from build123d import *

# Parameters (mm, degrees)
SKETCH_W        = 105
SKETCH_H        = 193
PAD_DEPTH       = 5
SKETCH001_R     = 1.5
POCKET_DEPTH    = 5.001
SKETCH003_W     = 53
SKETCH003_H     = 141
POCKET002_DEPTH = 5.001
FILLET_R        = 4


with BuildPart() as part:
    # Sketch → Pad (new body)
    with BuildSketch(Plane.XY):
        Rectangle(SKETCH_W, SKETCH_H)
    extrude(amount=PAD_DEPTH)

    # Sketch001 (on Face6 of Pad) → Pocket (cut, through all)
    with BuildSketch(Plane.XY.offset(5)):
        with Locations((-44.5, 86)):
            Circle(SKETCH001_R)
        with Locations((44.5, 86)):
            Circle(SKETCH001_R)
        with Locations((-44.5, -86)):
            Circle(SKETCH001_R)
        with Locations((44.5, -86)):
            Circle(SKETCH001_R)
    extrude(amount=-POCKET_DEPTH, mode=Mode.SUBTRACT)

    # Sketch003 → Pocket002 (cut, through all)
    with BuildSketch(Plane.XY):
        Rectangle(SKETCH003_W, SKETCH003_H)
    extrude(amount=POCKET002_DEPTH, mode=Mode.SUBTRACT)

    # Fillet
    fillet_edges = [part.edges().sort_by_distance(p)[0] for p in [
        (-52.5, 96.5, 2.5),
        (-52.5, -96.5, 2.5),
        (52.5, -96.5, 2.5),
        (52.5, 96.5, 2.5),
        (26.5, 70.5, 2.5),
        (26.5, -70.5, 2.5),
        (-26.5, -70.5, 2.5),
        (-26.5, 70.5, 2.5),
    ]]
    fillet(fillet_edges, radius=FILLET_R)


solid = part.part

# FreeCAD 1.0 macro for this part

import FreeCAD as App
import Part
import Sketcher


def edges_at(feature, points):
    """Names of the edges that pass closest to the given points."""
    edges = feature.Shape.Edges
    near = lambda p: min(range(len(edges)), key=lambda i: edges[i].distToShape(Part.Vertex(*p))[0])
    return sorted({f"Edge{near(p) + 1}" for p in points})

doc = App.newDocument("Part")
body = doc.addObject("PartDesign::Body", "Body")

sketch1 = doc.addObject("Sketcher::SketchObject", "Sketch")
body.addObject(sketch1)
sketch1.AttachmentSupport = (doc.XY_Plane, [""])
sketch1.MapMode = "FlatFace"
sketch1.addGeometry(Part.LineSegment(App.Vector(-52, 96, 0), App.Vector(-52, -96, 0)), False)
sketch1.addGeometry(Part.LineSegment(App.Vector(-52, -96, 0), App.Vector(52, -96, 0)), False)
sketch1.addGeometry(Part.LineSegment(App.Vector(52, -96, 0), App.Vector(52, 96, 0)), False)
sketch1.addGeometry(Part.LineSegment(App.Vector(52, 96, 0), App.Vector(-52, 96, 0)), False)
sketch1.addConstraint(Sketcher.Constraint("Coincident", 0, 2, 1, 1))
sketch1.addConstraint(Sketcher.Constraint("Coincident", 1, 2, 2, 1))
sketch1.addConstraint(Sketcher.Constraint("Coincident", 2, 2, 3, 1))
sketch1.addConstraint(Sketcher.Constraint("Coincident", 3, 2, 0, 1))
sketch1.addConstraint(Sketcher.Constraint("Vertical", 0))
sketch1.addConstraint(Sketcher.Constraint("Horizontal", 1))
sketch1.addConstraint(Sketcher.Constraint("Vertical", 2))
sketch1.addConstraint(Sketcher.Constraint("Horizontal", 3))
sketch1.addConstraint(Sketcher.Constraint("Symmetric", 0, 2, 2, 2, -1, 1))
sketch1.addConstraint(Sketcher.Constraint("DistanceX", 1, 1, 1, 2, 105.0))
sketch1.addConstraint(Sketcher.Constraint("DistanceY", 0, 2, 0, 1, 193.0))
pad1 = doc.addObject("PartDesign::Pad", "Pad")
body.addObject(pad1)
pad1.Profile = sketch1
pad1.Length = 5

sketch2 = doc.addObject("Sketcher::SketchObject", "Sketch001")
body.addObject(sketch2)
sketch2.AttachmentSupport = (doc.XY_Plane, [""])
sketch2.MapMode = "FlatFace"
sketch2.AttachmentOffset = App.Placement(App.Vector(0, 0, 5), App.Rotation())
sketch2.addGeometry(Part.Circle(App.Vector(-44.5, 86, 0), App.Vector(0, 0, 1), 1.5), False)
sketch2.addGeometry(Part.Circle(App.Vector(44.5, 86, 0), App.Vector(0, 0, 1), 1.5), False)
sketch2.addGeometry(Part.Circle(App.Vector(-44.5, -86, 0), App.Vector(0, 0, 1), 1.5), False)
sketch2.addGeometry(Part.Circle(App.Vector(44.5, -86, 0), App.Vector(0, 0, 1), 1.5), False)
sketch2.addConstraint(Sketcher.Constraint("Equal", 0, 1))
sketch2.addConstraint(Sketcher.Constraint("Equal", 1, 2))
sketch2.addConstraint(Sketcher.Constraint("Equal", 2, 3))
sketch2.addConstraint(Sketcher.Constraint("Symmetric", 1, 3, 2, 3, -1, 1))
sketch2.addConstraint(Sketcher.Constraint("Symmetric", 0, 3, 3, 3, -1, 1))
sketch2.addConstraint(Sketcher.Constraint("Symmetric", 0, 3, 1, 3, -2))
sketch2.addConstraint(Sketcher.Constraint("Diameter", 0, 3.0))
sketch2.addConstraint(Sketcher.Constraint("DistanceY", -1, 1, 0, 3, 86.0))
sketch2.addConstraint(Sketcher.Constraint("DistanceX", 0, 3, 1, 3, 89.0))
pocket1 = doc.addObject("PartDesign::Pocket", "Pocket")
body.addObject(pocket1)
pocket1.Profile = sketch2
pocket1.Type = "ThroughAll"

sketch3 = doc.addObject("Sketcher::SketchObject", "Sketch002")
body.addObject(sketch3)
sketch3.AttachmentSupport = (doc.XY_Plane, [""])
sketch3.MapMode = "FlatFace"
sketch3.addGeometry(Part.LineSegment(App.Vector(-26, 70, 0), App.Vector(-26, -70, 0)), False)
sketch3.addGeometry(Part.LineSegment(App.Vector(-26, -70, 0), App.Vector(26, -70, 0)), False)
sketch3.addGeometry(Part.LineSegment(App.Vector(26, -70, 0), App.Vector(26, 70, 0)), False)
sketch3.addGeometry(Part.LineSegment(App.Vector(26, 70, 0), App.Vector(-26, 70, 0)), False)
sketch3.addConstraint(Sketcher.Constraint("Coincident", 0, 2, 1, 1))
sketch3.addConstraint(Sketcher.Constraint("Coincident", 1, 2, 2, 1))
sketch3.addConstraint(Sketcher.Constraint("Coincident", 2, 2, 3, 1))
sketch3.addConstraint(Sketcher.Constraint("Coincident", 3, 2, 0, 1))
sketch3.addConstraint(Sketcher.Constraint("Vertical", 0))
sketch3.addConstraint(Sketcher.Constraint("Horizontal", 1))
sketch3.addConstraint(Sketcher.Constraint("Vertical", 2))
sketch3.addConstraint(Sketcher.Constraint("Horizontal", 3))
sketch3.addConstraint(Sketcher.Constraint("Symmetric", 0, 2, 2, 2, -1, 1))
sketch3.addConstraint(Sketcher.Constraint("DistanceX", 1, 1, 1, 2, 53.0))
sketch3.addConstraint(Sketcher.Constraint("DistanceY", 0, 2, 0, 1, 141.0))
pocket2 = doc.addObject("PartDesign::Pocket", "Pocket001")
body.addObject(pocket2)
pocket2.Profile = sketch3
pocket2.Type = "ThroughAll"
pocket2.Reversed = True
doc.recompute()

fillet = doc.addObject("PartDesign::Fillet", "Fillet")
body.addObject(fillet)
fillet.Base = (pocket2, edges_at(pocket2, [
    (-52.5, 96.5, 2.5),
    (-52.5, -96.5, 2.5),
    (52.5, -96.5, 2.5),
    (52.5, 96.5, 2.5),
    (26.5, 70.5, 2.5),
    (26.5, -70.5, 2.5),
    (-26.5, -70.5, 2.5),
    (-26.5, 70.5, 2.5),
]))
fillet.Radius = 4

doc.recompute()
